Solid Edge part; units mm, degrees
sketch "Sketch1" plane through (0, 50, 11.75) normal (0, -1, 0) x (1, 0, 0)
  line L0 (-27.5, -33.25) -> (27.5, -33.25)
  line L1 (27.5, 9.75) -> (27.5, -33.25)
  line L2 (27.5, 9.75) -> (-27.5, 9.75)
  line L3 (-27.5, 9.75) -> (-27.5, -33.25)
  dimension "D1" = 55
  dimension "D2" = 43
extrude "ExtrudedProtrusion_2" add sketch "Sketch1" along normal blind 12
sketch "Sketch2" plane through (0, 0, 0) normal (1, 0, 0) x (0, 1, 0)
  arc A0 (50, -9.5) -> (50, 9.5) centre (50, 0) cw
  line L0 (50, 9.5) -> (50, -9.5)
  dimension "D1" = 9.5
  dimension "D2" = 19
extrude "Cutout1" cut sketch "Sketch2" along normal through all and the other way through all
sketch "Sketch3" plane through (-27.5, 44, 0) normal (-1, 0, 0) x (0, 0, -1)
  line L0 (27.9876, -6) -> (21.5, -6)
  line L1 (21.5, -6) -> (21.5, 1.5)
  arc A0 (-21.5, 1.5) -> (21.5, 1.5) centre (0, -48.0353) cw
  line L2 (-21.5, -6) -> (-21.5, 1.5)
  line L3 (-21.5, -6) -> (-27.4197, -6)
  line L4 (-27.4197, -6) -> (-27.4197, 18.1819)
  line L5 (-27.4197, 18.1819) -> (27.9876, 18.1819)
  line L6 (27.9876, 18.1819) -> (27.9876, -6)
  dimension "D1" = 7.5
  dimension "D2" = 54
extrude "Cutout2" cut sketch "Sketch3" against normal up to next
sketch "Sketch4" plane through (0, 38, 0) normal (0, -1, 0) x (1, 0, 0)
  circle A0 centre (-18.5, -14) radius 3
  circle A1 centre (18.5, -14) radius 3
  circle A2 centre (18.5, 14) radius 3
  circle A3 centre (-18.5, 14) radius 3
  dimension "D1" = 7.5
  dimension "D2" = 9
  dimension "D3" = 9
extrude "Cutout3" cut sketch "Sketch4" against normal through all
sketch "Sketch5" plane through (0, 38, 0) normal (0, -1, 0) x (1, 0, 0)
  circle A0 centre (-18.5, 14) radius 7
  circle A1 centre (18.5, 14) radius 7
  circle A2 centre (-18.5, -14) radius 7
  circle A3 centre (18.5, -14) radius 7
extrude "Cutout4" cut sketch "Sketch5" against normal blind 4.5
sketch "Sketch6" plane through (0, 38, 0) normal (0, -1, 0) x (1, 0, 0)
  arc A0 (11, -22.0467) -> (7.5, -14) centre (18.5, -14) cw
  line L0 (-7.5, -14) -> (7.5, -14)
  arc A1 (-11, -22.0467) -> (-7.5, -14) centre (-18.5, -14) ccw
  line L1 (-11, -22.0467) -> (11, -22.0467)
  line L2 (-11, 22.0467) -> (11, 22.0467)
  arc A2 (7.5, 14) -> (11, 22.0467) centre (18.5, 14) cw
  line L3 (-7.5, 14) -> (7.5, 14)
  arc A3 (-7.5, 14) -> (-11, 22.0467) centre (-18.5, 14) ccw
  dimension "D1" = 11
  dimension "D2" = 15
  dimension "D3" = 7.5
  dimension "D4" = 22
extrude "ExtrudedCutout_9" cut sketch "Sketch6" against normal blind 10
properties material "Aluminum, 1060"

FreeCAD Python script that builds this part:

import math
import FreeCAD as App
import Part
import Sketcher
from FreeCAD import Vector
Q = App.Units.Quantity


def add_polygon(sketch, points):
    """Adds a closed chain of lines whose ends are joined by coincident constraints."""
    first, n = sketch.GeometryCount, len(points)
    for a, b in zip(points, points[1:] + points[:1]):
        sketch.addGeometry(Part.LineSegment(App.Vector(*a, 0), App.Vector(*b, 0)), False)
    for i in range(n):
        sketch.addConstraint(Sketcher.Constraint("Coincident", first + i, 2, first + (i + 1) % n, 1))

doc = App.newDocument("Part")
body = doc.addObject("PartDesign::Body", "Body")

# Sketch on XZ plane
sketch1 = body.newObject("Sketcher::SketchObject", "Sketch")
sketch1.AttachmentSupport = (doc.getObject("XZ_Plane"), [""])
sketch1.MapMode = "FlatFace"
sketch1.AttachmentOffset = App.Placement(Vector(0, 0, -50), App.Rotation())
add_polygon(sketch1, [(-27.5, 21.5), (-27.5, -21.5), (27.5, -21.5), (27.5, 21.5)])  # lines 0-3
sketch1.addConstraint(Sketcher.Constraint("Vertical", 0))
sketch1.addConstraint(Sketcher.Constraint("Horizontal", 1))
sketch1.addConstraint(Sketcher.Constraint("Vertical", 2))
sketch1.addConstraint(Sketcher.Constraint("Horizontal", 3))
sketch1.addConstraint(Sketcher.Constraint("Symmetric", 0, 2, 2, 2, -1, 1))
sketch1.addConstraint(Sketcher.Constraint("DistanceX", 0, 2, -1, 1, Q("27.5 mm")))
sketch1.addConstraint(Sketcher.Constraint("DistanceY", 0, 2, 0, 1, Q("43 mm")))
pad1 = body.newObject("PartDesign::Pad", "Pad")
pad1.Profile = sketch1
pad1.Length = 12

# Sketch on YZ plane
sketch2 = body.newObject("Sketcher::SketchObject", "Sketch001")
sketch2.AttachmentSupport = (doc.getObject("YZ_Plane"), [""])
sketch2.MapMode = "FlatFace"
sketch2.addGeometry(Part.ArcOfCircle(Part.Circle(Vector(50, 0, 0), Vector(0, 0, 1), 9.5), math.radians(90), math.radians(270)), False)
sketch2.addGeometry(Part.LineSegment(Vector(50, -9.5, 0), Vector(50, 9.5, 0)), False)
sketch2.addConstraint(Sketcher.Constraint("Coincident", 0, 1, 1, 2))
sketch2.addConstraint(Sketcher.Constraint("Coincident", 1, 1, 0, 2))
sketch2.addConstraint(Sketcher.Constraint("Vertical", 1))
sketch2.addConstraint(Sketcher.Constraint("PointOnObject", 0, 3, -1))
sketch2.addConstraint(Sketcher.Constraint("DistanceX", -1, 1, 0, 3, Q("50 mm")))
sketch2.addConstraint(Sketcher.Constraint("DistanceX", -1, 1, 0, 1, Q("50 mm")))
sketch2.addConstraint(Sketcher.Constraint("Radius", 0, Q("9.5 mm")))
pocket1 = body.newObject("PartDesign::Pocket", "Pocket")
pocket1.Profile = sketch2
pocket1.Type = "ThroughAll"
pocket1.Midplane = True

# Sketch on YZ plane
sketch3 = body.newObject("Sketcher::SketchObject", "Sketch002")
sketch3.AttachmentSupport = (doc.getObject("YZ_Plane"), [""])
sketch3.MapMode = "FlatFace"
sketch3.AttachmentOffset = App.Placement(Vector(0, 0, -27.5), App.Rotation())
sketch3.addGeometry(Part.LineSegment(Vector(50, -21.5, 0), Vector(50, -27.9876, 0)), False)
sketch3.addGeometry(Part.LineSegment(Vector(50, -27.9876, 0), Vector(25.8181, -27.9876, 0)), False)
sketch3.addGeometry(Part.LineSegment(Vector(25.8181, -27.9876, 0), Vector(25.8181, 27.4197, 0)), False)
sketch3.addGeometry(Part.LineSegment(Vector(25.8181, 27.4197, 0), Vector(50, 27.4197, 0)), False)
sketch3.addGeometry(Part.LineSegment(Vector(50, 27.4197, 0), Vector(50, 21.5, 0)), False)
sketch3.addGeometry(Part.LineSegment(Vector(50, 21.5, 0), Vector(42.5, 21.5, 0)), False)
sketch3.addGeometry(Part.ArcOfCircle(Part.Circle(Vector(92.0353, 0, 0), Vector(0, 0, 1), 53.999962), math.radians(156.537522), math.radians(203.462478)), False)
sketch3.addGeometry(Part.LineSegment(Vector(42.5, -21.5, 0), Vector(50, -21.5, 0)), False)
sketch3.addConstraint(Sketcher.Constraint("Coincident", 0, 2, 1, 1))
sketch3.addConstraint(Sketcher.Constraint("Coincident", 1, 2, 2, 1))
sketch3.addConstraint(Sketcher.Constraint("Coincident", 2, 2, 3, 1))
sketch3.addConstraint(Sketcher.Constraint("Coincident", 3, 2, 4, 1))
sketch3.addConstraint(Sketcher.Constraint("Coincident", 4, 2, 5, 1))
sketch3.addConstraint(Sketcher.Constraint("Coincident", 5, 2, 6, 1))
sketch3.addConstraint(Sketcher.Constraint("Coincident", 6, 2, 7, 1))
sketch3.addConstraint(Sketcher.Constraint("Coincident", 7, 2, 0, 1))
sketch3.addConstraint(Sketcher.Constraint("Vertical", 0))
sketch3.addConstraint(Sketcher.Constraint("Horizontal", 1))
sketch3.addConstraint(Sketcher.Constraint("Vertical", 2))
sketch3.addConstraint(Sketcher.Constraint("Horizontal", 3))
sketch3.addConstraint(Sketcher.Constraint("Vertical", 4))
sketch3.addConstraint(Sketcher.Constraint("Horizontal", 5))
sketch3.addConstraint(Sketcher.Constraint("Horizontal", 7))
sketch3.addConstraint(Sketcher.Constraint("Symmetric", 5, 2, 6, 2, -1))
sketch3.addConstraint(Sketcher.Constraint("Vertical", 0, 2, 3, 2))
sketch3.addConstraint(Sketcher.Constraint("Radius", 6, Q("54 mm")))
sketch3.addConstraint(Sketcher.Constraint("DistanceX", 5, 2, 5, 1, Q("7.5 mm")))
sketch3.addConstraint(Sketcher.Constraint("DistanceX", -1, 1, 0, 2, Q("50 mm")))
sketch3.addConstraint(Sketcher.Constraint("DistanceY", 6, 2, 5, 2, Q("43 mm")))
sketch3.addConstraint(Sketcher.Constraint("DistanceX", 1, 2, 1, 1, Q("24.182 mm")))
sketch3.addConstraint(Sketcher.Constraint("DistanceY", 0, 2, 0, 1, Q("6.4876 mm")))
sketch3.addConstraint(Sketcher.Constraint("DistanceY", 2, 1, 2, 2, Q("55.4073 mm")))
pocket2 = body.newObject("PartDesign::Pocket", "Pocket001")
pocket2.Profile = sketch3
pocket2.Length = 55
pocket2.Reversed = True

# Sketch on XZ plane
sketch4 = body.newObject("Sketcher::SketchObject", "Sketch003")
sketch4.AttachmentSupport = (doc.getObject("XZ_Plane"), [""])
sketch4.MapMode = "FlatFace"
sketch4.AttachmentOffset = App.Placement(Vector(0, 0, -38), App.Rotation())
sketch4.addGeometry(Part.Circle(Vector(-18.5, -14, 0), Vector(0, 0, 1), 3), False)
sketch4.addGeometry(Part.Circle(Vector(18.5, -14, 0), Vector(0, 0, 1), 3), False)
sketch4.addGeometry(Part.Circle(Vector(18.5, 14, 0), Vector(0, 0, 1), 3), False)
sketch4.addGeometry(Part.Circle(Vector(-18.5, 14, 0), Vector(0, 0, 1), 3), False)
sketch4.addConstraint(Sketcher.Constraint("Equal", 0, 1))
sketch4.addConstraint(Sketcher.Constraint("Equal", 1, 2))
sketch4.addConstraint(Sketcher.Constraint("Equal", 2, 3))
sketch4.addConstraint(Sketcher.Constraint("Symmetric", 0, 3, 2, 3, -1, 1))
sketch4.addConstraint(Sketcher.Constraint("Symmetric", 1, 3, 3, 3, -1, 1))
sketch4.addConstraint(Sketcher.Constraint("Symmetric", 0, 3, 1, 3, -2))
sketch4.addConstraint(Sketcher.Constraint("Diameter", 0, Q("6 mm")))
sketch4.addConstraint(Sketcher.Constraint("DistanceX", 0, 3, -1, 1, Q("18.5 mm")))
sketch4.addConstraint(Sketcher.Constraint("DistanceY", 0, 3, -1, 1, Q("14 mm")))
pocket3 = body.newObject("PartDesign::Pocket", "Pocket002")
pocket3.Profile = sketch4
pocket3.Type = "ThroughAll"

# Sketch on XZ plane
sketch5 = body.newObject("Sketcher::SketchObject", "Sketch004")
sketch5.AttachmentSupport = (doc.getObject("XZ_Plane"), [""])
sketch5.MapMode = "FlatFace"
sketch5.AttachmentOffset = App.Placement(Vector(0, 0, -38), App.Rotation())
sketch5.addGeometry(Part.Circle(Vector(-18.5, 14, 0), Vector(0, 0, 1), 7), False)
sketch5.addGeometry(Part.Circle(Vector(18.5, 14, 0), Vector(0, 0, 1), 7), False)
sketch5.addGeometry(Part.Circle(Vector(-18.5, -14, 0), Vector(0, 0, 1), 7), False)
sketch5.addGeometry(Part.Circle(Vector(18.5, -14, 0), Vector(0, 0, 1), 7), False)
sketch5.addConstraint(Sketcher.Constraint("Equal", 0, 1))
sketch5.addConstraint(Sketcher.Constraint("Equal", 1, 2))
sketch5.addConstraint(Sketcher.Constraint("Equal", 2, 3))
sketch5.addConstraint(Sketcher.Constraint("Symmetric", 1, 3, 2, 3, -1, 1))
sketch5.addConstraint(Sketcher.Constraint("Symmetric", 0, 3, 3, 3, -1, 1))
sketch5.addConstraint(Sketcher.Constraint("Symmetric", 0, 3, 1, 3, -2))
sketch5.addConstraint(Sketcher.Constraint("Diameter", 0, Q("14 mm")))
sketch5.addConstraint(Sketcher.Constraint("DistanceY", -1, 1, 0, 3, Q("14 mm")))
sketch5.addConstraint(Sketcher.Constraint("DistanceX", 0, 3, 1, 3, Q("37 mm")))
pocket4 = body.newObject("PartDesign::Pocket", "Pocket003")
pocket4.Profile = sketch5
pocket4.Length = 4.5

# Sketch on XZ plane
sketch6 = body.newObject("Sketcher::SketchObject", "Sketch005")
sketch6.AttachmentSupport = (doc.getObject("XZ_Plane"), [""])
sketch6.MapMode = "FlatFace"
sketch6.AttachmentOffset = App.Placement(Vector(0, 0, -38), App.Rotation())
sketch6.addGeometry(Part.LineSegment(Vector(-11, -22.0467, 0), Vector(11, -22.0467, 0)), False)
sketch6.addGeometry(Part.ArcOfCircle(Part.Circle(Vector(18.5, -14, 0), Vector(0, 0, 1), 10.999972), math.radians(180), math.radians(227.013977)), False)
sketch6.addGeometry(Part.LineSegment(Vector(7.5, -14, 0), Vector(-7.5, -14, 0)), False)
sketch6.addGeometry(Part.ArcOfCircle(Part.Circle(Vector(-18.5, -14, 0), Vector(0, 0, 1), 10.999972), math.radians(-47.013977), math.radians(0)), False)
sketch6.addGeometry(Part.LineSegment(Vector(11, 22.0467, 0), Vector(-11, 22.0467, 0)), False)
sketch6.addGeometry(Part.ArcOfCircle(Part.Circle(Vector(-18.5, 14, 0), Vector(0, 0, 1), 11), math.radians(0), math.radians(47.013977)), False)
sketch6.addGeometry(Part.LineSegment(Vector(-7.5, 14, 0), Vector(7.5, 14, 0)), False)
sketch6.addGeometry(Part.ArcOfCircle(Part.Circle(Vector(18.5, 14, 0), Vector(0, 0, 1), 11), math.radians(132.986023), math.radians(180)), False)
sketch6.addConstraint(Sketcher.Constraint("Coincident", 0, 2, 1, 2))
sketch6.addConstraint(Sketcher.Constraint("Coincident", 1, 1, 2, 1))
sketch6.addConstraint(Sketcher.Constraint("Coincident", 2, 2, 3, 2))
sketch6.addConstraint(Sketcher.Constraint("Coincident", 3, 1, 0, 1))
sketch6.addConstraint(Sketcher.Constraint("Coincident", 4, 2, 5, 2))
sketch6.addConstraint(Sketcher.Constraint("Coincident", 5, 1, 6, 1))
sketch6.addConstraint(Sketcher.Constraint("Coincident", 6, 2, 7, 2))
sketch6.addConstraint(Sketcher.Constraint("Coincident", 7, 1, 4, 1))
sketch6.addConstraint(Sketcher.Constraint("Horizontal", 0))
sketch6.addConstraint(Sketcher.Constraint("Horizontal", 2))
sketch6.addConstraint(Sketcher.Constraint("Horizontal", 4))
sketch6.addConstraint(Sketcher.Constraint("Horizontal", 6))
sketch6.addConstraint(Sketcher.Constraint("Equal", 1, 3))
sketch6.addConstraint(Sketcher.Constraint("Equal", 3, 5))
sketch6.addConstraint(Sketcher.Constraint("Equal", 5, 7))
sketch6.addConstraint(Sketcher.Constraint("Symmetric", 1, 3, 5, 3, -1, 1))
sketch6.addConstraint(Sketcher.Constraint("Symmetric", 3, 3, 7, 3, -1, 1))
sketch6.addConstraint(Sketcher.Constraint("Symmetric", 1, 3, 3, 3, -2))
sketch6.addConstraint(Sketcher.Constraint("Horizontal", 3, 3, 1, 1))
sketch6.addConstraint(Sketcher.Constraint("Horizontal", 7, 3, 5, 1))
sketch6.addConstraint(Sketcher.Constraint("Vertical", 3, 1, 4, 2))
sketch6.addConstraint(Sketcher.Constraint("Radius", 1, Q("11 mm")))
sketch6.addConstraint(Sketcher.Constraint("DistanceX", -1, 1, 0, 2, Q("11 mm")))
sketch6.addConstraint(Sketcher.Constraint("DistanceX", -1, 1, 1, 1, Q("7.5 mm")))
sketch6.addConstraint(Sketcher.Constraint("DistanceY", 1, 3, -1, 1, Q("14 mm")))
pocket5 = body.newObject("PartDesign::Pocket", "Pocket004")
pocket5.Profile = sketch6
pocket5.Length = 10

doc.recompute()
